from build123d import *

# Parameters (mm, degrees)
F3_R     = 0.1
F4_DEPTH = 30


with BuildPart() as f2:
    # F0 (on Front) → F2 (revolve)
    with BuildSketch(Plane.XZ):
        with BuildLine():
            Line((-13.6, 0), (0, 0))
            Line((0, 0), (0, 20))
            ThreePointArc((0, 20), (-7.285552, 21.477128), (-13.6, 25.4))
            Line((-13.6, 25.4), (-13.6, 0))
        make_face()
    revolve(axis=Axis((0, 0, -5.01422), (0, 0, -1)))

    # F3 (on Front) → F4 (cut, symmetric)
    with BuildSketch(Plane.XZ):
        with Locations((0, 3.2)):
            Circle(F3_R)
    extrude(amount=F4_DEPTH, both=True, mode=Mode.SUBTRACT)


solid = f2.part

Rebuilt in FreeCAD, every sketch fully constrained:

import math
import FreeCAD as App
import Part
import Sketcher

V = App.Vector
Q = App.Units.Quantity

doc = App.newDocument("Part")
params = doc.addObject("Spreadsheet::Sheet", "Params")
for row, (alias, value) in enumerate([
    ("sketch1_height", "20 mm"),
    ("sketch1_width", "13.6 mm"),
    ("sketch1_height2", "25.4 mm"),
    ("revolution_angle", "360 deg"),
    ("sketch2_diameter", "0.2 mm"),
    ("pocket1_length", "60 mm"),
], start=1):
    params.set(f"A{row}", alias)
    params.set(f"B{row}", "=" + value)
    params.setAlias(f"B{row}", alias)

body = doc.addObject("PartDesign::Body", "Body")

# Sketch on XZ plane
sketch1 = body.newObject("Sketcher::SketchObject", "Sketch")
sketch1.AttachmentSupport = (doc.getObject("XZ_Plane"), [""])
sketch1.MapMode = "FlatFace"
sketch1.addGeometry(Part.LineSegment(V(-14, 0, 0), V(0, 0, 0)), False)
sketch1.addGeometry(Part.LineSegment(V(0, 0, 0), V(0, 20, 0)), False)
sketch1.addGeometry(Part.ArcOfCircle(Part.Circle(V(0, 41, 0), V(0, 0, 1), 21), math.radians(-132), math.radians(-91)), False)
sketch1.addGeometry(Part.LineSegment(V(-14, 25, 0), V(-14, 0, 0)), False)
sketch1.addConstraint(Sketcher.Constraint("Coincident", 0, 2, 1, 1))
sketch1.addConstraint(Sketcher.Constraint("Coincident", 1, 2, 2, 2))
sketch1.addConstraint(Sketcher.Constraint("Coincident", 2, 1, 3, 1))
sketch1.addConstraint(Sketcher.Constraint("Coincident", 3, 2, 0, 1))
sketch1.addConstraint(Sketcher.Constraint("Horizontal", 0))
sketch1.addConstraint(Sketcher.Constraint("Vertical", 1))
sketch1.addConstraint(Sketcher.Constraint("Vertical", 3))
sketch1.addConstraint(Sketcher.Constraint("Coincident", 0, 2, -1, 1))
sketch1.addConstraint(Sketcher.Constraint("DistanceY", 1, 1, 1, 2, Q("20 mm")))
sketch1.addConstraint(Sketcher.Constraint("DistanceX", 0, 1, 0, 2, Q("13.6 mm")))
sketch1.addConstraint(Sketcher.Constraint("DistanceY", 3, 2, 3, 1, Q("25.4 mm")))
sketch1.addConstraint(Sketcher.Constraint("Radius", 2, Q("21.000007 mm")))
sketch1.setExpression("Constraints[8]", "Params.sketch1_height")
sketch1.setExpression("Constraints[9]", "Params.sketch1_width")
sketch1.setExpression("Constraints[10]", "Params.sketch1_height2")
revolution = body.newObject("PartDesign::Revolution", "Revolution")
revolution.Profile = sketch1
revolution.ReferenceAxis = (sketch1, ["V_Axis"])
revolution.setExpression("Angle", "Params.revolution_angle")

# Sketch on XZ plane
sketch2 = body.newObject("Sketcher::SketchObject", "Sketch001")
sketch2.AttachmentSupport = (doc.getObject("XZ_Plane"), [""])
sketch2.MapMode = "FlatFace"
sketch2.addGeometry(Part.Circle(V(0, 3.2, 0), V(0, 0, 1), 0.1), False)
sketch2.addConstraint(Sketcher.Constraint("PointOnObject", 0, 3, -2))
sketch2.addConstraint(Sketcher.Constraint("Diameter", 0, Q("0.2 mm")))
sketch2.addConstraint(Sketcher.Constraint("DistanceY", -1, 1, 0, 3, Q("3.2 mm")))
sketch2.setExpression("Constraints[1]", "Params.sketch2_diameter")
pocket1 = body.newObject("PartDesign::Pocket", "Pocket")
pocket1.Profile = sketch2
pocket1.setExpression("Length", "Params.pocket1_length")
pocket1.Midplane = True

doc.recompute()
